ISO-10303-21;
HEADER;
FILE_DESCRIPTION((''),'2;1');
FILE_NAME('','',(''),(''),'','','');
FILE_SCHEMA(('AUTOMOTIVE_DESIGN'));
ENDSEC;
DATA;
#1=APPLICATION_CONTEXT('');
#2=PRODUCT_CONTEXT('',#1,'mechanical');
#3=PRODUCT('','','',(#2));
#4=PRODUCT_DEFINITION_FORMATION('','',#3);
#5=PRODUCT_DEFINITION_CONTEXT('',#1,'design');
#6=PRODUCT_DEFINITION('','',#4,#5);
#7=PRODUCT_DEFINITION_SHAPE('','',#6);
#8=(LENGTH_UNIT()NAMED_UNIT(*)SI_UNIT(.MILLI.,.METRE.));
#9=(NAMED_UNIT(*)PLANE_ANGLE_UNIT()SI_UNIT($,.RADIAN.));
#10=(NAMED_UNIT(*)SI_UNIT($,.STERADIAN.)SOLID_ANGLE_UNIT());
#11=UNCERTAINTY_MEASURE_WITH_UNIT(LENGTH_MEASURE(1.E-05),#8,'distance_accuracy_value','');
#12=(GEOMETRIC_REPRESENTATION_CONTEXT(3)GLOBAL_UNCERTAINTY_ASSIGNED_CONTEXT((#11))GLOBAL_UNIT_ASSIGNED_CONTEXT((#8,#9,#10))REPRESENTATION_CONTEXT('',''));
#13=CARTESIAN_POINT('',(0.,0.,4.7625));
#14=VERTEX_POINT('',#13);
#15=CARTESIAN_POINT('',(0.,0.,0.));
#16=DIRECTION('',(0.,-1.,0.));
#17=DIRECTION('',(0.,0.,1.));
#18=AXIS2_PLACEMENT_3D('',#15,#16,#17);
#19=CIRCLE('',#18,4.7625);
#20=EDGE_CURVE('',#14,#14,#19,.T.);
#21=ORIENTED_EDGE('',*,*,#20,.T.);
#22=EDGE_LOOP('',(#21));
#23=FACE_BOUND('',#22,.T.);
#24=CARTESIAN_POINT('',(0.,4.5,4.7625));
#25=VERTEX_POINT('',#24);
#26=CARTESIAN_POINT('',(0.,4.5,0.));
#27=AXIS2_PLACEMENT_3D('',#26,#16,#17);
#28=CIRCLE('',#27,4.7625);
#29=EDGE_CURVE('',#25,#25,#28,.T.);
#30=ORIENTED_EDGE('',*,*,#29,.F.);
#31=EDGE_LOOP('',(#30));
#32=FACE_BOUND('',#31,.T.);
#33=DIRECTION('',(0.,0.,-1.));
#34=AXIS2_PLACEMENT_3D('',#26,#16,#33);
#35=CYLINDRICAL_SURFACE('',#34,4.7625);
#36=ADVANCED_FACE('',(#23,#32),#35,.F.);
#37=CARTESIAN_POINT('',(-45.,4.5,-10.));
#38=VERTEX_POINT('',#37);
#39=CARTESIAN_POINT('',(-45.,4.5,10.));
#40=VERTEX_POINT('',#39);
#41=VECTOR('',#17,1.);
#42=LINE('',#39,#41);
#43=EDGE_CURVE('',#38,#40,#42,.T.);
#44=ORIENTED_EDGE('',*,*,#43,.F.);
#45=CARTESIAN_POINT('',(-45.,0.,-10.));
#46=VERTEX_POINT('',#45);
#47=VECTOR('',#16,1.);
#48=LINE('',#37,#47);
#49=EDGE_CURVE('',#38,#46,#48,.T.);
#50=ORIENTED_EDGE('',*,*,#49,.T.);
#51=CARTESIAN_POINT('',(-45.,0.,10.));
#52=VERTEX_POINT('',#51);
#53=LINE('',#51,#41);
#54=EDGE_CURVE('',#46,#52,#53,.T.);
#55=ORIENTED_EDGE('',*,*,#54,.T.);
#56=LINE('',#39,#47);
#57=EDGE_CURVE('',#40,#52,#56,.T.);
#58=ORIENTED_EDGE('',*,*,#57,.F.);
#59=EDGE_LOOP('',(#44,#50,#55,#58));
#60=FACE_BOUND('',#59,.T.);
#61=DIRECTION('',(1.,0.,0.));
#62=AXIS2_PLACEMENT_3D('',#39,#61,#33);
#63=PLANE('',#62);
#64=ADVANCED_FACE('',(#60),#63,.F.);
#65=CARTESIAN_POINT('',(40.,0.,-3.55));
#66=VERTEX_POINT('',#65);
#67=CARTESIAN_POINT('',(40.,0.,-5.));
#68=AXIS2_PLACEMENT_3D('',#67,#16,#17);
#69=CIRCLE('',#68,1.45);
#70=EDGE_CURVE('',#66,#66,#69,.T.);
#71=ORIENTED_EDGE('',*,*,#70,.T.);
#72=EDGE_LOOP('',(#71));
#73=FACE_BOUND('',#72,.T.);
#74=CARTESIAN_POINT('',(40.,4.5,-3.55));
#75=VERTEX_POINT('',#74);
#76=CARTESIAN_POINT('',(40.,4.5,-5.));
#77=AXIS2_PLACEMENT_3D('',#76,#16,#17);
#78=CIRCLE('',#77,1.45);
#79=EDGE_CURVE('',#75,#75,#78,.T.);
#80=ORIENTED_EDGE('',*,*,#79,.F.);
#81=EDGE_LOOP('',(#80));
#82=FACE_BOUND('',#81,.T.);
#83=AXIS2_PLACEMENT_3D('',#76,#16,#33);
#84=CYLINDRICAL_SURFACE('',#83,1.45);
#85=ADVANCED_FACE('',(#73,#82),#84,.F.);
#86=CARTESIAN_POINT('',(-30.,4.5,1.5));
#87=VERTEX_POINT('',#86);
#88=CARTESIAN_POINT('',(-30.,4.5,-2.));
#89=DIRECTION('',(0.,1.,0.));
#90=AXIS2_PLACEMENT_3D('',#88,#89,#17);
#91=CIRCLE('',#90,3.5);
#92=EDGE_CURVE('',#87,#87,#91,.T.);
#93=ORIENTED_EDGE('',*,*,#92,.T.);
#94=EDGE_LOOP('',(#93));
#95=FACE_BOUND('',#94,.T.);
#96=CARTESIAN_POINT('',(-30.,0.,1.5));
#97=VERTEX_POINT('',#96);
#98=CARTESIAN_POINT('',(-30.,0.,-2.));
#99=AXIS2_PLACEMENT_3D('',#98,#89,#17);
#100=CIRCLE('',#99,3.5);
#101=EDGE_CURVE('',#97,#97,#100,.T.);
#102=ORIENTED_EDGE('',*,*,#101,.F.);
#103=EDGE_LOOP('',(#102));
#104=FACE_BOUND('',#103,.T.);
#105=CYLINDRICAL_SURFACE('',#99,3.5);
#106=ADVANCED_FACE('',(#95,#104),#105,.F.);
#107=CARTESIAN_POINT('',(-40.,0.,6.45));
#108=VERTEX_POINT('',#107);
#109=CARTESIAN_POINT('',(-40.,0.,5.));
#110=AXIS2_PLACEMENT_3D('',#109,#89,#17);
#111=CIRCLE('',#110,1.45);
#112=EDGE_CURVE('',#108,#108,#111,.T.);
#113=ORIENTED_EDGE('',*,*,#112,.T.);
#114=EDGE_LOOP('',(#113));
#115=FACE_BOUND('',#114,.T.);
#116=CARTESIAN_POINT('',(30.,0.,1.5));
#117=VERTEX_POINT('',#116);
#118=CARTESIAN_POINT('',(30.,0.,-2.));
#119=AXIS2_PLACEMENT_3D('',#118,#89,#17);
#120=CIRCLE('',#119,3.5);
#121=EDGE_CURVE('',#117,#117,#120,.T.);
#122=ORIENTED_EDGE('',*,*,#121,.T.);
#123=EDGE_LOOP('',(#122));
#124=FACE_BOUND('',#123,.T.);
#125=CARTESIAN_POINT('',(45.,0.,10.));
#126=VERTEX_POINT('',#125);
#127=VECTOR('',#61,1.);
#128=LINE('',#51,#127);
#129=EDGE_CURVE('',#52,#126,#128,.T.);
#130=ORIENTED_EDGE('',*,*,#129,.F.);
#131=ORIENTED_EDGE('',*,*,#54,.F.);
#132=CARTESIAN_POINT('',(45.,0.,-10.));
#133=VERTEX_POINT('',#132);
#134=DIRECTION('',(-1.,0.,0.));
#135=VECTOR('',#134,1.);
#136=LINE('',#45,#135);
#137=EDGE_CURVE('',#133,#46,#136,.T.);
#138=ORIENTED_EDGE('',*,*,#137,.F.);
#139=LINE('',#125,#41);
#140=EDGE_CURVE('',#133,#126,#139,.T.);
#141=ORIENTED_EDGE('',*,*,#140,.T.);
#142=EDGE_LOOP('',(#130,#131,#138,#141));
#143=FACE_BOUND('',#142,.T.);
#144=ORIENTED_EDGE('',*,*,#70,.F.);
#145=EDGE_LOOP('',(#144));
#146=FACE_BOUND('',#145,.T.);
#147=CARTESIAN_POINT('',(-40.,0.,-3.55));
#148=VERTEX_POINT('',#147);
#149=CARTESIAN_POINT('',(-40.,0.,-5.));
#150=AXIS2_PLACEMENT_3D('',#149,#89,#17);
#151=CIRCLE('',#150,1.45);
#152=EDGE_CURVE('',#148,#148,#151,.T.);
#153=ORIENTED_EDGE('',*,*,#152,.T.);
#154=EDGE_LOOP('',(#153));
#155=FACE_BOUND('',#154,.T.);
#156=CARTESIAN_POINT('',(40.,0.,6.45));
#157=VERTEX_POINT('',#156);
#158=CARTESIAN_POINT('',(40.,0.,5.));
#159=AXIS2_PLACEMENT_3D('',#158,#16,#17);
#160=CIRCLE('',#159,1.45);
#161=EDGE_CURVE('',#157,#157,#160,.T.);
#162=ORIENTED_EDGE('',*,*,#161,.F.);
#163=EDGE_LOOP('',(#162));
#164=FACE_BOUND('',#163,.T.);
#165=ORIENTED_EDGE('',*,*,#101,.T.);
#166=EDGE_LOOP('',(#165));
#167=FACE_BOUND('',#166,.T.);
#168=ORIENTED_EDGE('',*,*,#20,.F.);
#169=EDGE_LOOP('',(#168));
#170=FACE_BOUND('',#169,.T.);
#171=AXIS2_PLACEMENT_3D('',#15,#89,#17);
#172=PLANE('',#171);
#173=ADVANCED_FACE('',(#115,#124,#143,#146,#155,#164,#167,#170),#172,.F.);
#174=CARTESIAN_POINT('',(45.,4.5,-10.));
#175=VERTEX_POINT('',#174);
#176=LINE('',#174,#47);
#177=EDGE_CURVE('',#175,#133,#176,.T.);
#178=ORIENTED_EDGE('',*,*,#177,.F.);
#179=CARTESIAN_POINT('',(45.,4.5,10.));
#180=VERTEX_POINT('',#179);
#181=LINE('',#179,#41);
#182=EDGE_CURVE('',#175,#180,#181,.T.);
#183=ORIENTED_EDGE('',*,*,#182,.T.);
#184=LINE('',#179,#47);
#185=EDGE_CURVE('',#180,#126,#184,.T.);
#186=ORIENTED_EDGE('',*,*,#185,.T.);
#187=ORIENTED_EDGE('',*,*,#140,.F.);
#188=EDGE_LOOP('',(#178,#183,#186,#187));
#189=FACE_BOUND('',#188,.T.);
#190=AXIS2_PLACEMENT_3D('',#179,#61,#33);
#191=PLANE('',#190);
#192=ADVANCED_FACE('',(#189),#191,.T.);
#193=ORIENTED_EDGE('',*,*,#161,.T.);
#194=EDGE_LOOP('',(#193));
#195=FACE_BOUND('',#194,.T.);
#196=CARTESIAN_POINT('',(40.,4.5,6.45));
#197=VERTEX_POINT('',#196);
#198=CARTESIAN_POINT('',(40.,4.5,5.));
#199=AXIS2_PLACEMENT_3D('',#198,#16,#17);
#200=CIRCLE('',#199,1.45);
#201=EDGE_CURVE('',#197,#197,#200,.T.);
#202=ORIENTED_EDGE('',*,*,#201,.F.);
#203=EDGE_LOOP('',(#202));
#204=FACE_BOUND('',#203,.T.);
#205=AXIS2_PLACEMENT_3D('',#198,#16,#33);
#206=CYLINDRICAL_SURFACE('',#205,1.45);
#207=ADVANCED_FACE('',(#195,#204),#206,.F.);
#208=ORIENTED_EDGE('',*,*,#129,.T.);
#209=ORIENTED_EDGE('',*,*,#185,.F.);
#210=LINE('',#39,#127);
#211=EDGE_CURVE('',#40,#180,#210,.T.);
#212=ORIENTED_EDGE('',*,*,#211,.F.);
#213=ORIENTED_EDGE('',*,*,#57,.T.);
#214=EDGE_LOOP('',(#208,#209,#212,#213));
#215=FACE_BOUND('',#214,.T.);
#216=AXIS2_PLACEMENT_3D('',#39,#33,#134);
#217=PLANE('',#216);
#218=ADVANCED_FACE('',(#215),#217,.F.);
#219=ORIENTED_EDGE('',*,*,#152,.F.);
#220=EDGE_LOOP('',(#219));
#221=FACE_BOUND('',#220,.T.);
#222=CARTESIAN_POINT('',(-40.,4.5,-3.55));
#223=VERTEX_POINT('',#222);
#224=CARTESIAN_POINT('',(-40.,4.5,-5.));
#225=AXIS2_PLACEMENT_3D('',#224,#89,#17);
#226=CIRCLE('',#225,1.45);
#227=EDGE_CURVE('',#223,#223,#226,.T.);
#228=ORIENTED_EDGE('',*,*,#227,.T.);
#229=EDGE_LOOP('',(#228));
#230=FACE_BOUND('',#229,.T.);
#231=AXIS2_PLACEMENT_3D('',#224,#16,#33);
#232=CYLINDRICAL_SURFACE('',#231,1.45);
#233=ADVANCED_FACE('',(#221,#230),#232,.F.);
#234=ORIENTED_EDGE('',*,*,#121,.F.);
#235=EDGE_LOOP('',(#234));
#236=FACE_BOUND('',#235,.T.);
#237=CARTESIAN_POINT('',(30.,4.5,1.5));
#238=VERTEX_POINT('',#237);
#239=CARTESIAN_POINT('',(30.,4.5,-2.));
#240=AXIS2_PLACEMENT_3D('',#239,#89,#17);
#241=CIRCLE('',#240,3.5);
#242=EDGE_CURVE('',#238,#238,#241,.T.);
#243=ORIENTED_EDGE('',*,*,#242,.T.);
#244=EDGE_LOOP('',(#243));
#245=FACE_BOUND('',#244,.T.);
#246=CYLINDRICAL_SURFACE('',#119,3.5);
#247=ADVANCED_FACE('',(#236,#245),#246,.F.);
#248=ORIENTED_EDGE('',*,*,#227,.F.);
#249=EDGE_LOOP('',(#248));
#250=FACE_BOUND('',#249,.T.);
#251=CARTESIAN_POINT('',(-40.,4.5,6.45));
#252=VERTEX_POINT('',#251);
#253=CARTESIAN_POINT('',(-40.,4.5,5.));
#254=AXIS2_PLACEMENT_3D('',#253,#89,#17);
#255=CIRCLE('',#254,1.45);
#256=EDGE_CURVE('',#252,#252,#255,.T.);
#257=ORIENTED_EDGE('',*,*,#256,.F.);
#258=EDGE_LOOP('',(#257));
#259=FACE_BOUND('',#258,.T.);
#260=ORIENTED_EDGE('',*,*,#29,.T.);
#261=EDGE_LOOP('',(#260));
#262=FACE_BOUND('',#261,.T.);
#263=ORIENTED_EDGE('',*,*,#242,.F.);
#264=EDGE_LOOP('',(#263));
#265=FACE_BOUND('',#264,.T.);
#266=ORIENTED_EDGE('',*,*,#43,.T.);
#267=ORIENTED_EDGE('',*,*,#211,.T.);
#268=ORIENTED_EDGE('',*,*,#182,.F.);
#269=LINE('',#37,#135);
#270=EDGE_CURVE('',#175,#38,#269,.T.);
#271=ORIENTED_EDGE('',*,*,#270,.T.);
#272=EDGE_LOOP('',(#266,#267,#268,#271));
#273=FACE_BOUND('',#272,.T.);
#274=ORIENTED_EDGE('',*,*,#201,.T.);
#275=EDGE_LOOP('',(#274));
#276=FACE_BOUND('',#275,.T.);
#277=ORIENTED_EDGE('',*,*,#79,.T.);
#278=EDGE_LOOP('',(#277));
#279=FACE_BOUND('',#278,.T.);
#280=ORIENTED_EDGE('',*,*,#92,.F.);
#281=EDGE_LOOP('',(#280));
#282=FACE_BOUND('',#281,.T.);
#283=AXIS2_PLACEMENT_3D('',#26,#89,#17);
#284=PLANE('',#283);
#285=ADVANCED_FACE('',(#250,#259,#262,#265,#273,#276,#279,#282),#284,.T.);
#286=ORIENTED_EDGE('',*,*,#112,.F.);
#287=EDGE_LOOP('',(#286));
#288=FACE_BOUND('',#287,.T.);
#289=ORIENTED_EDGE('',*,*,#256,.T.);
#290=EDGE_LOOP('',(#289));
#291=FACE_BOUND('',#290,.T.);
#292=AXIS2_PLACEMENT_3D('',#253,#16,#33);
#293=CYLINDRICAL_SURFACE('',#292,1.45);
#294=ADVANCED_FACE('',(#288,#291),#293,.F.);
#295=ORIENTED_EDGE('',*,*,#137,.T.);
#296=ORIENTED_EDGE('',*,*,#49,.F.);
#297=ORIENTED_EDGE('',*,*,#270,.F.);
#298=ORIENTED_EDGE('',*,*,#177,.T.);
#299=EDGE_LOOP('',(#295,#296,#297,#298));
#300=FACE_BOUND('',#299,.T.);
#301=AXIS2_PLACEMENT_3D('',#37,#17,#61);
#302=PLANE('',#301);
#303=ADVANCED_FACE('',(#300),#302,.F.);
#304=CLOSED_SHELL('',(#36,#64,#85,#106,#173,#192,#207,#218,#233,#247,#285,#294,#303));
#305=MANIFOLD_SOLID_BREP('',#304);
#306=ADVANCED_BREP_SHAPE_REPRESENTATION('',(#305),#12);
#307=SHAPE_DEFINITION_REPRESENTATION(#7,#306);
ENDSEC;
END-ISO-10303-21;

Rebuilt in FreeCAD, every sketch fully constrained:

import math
import FreeCAD as App
import Part
import Sketcher
Q = App.Units.Quantity

doc = App.newDocument("Part")
params = doc.addObject("Spreadsheet::Sheet", "Params")
for row, (alias, value) in enumerate([
    ("sketch1_diameter", "2.9 mm"),
    ("sketch1_width", "45 mm"),
    ("sketch1_height", "20 mm"),
    ("pad1_length", "4.5 mm"),
    ("sketch2_diameter", "7 mm"),
], start=1):
    params.set(f"A{row}", alias)
    params.set(f"B{row}", "=" + value)
    params.setAlias(f"B{row}", alias)

body = doc.addObject("PartDesign::Body", "Body")

sketch1 = body.newObject("Sketcher::SketchObject", "Sketch")
sketch1.AttachmentSupport = (doc.getObject("XZ_Plane"), [""])
sketch1.MapMode = "FlatFace"
sketch1.addGeometry(Part.LineSegment(App.Vector(0, -4.8, 0), App.Vector(0, -10, 0)), False)
sketch1.addGeometry(Part.LineSegment(App.Vector(0, -10, 0), App.Vector(-45, -10, 0)), False)
sketch1.addGeometry(Part.LineSegment(App.Vector(-45, -10, 0), App.Vector(-45, 10, 0)), False)
sketch1.addGeometry(Part.LineSegment(App.Vector(-45, 10, 0), App.Vector(0, 10, 0)), False)
sketch1.addGeometry(Part.LineSegment(App.Vector(0, 10, 0), App.Vector(0, 4.8, 0)), False)
sketch1.addGeometry(Part.ArcOfCircle(Part.Circle(App.Vector(0, 0, 0), App.Vector(0, 0, 1), 4.8), math.radians(90), math.radians(270)), False)
sketch1.addGeometry(Part.Circle(App.Vector(-40, 5, 0), App.Vector(0, 0, 1), 1.4), False)
sketch1.addGeometry(Part.Circle(App.Vector(-40, -5, 0), App.Vector(0, 0, 1), 1.4), False)
sketch1.addConstraint(Sketcher.Constraint("Coincident", 0, 2, 1, 1))
sketch1.addConstraint(Sketcher.Constraint("Coincident", 1, 2, 2, 1))
sketch1.addConstraint(Sketcher.Constraint("Coincident", 2, 2, 3, 1))
sketch1.addConstraint(Sketcher.Constraint("Coincident", 3, 2, 4, 1))
sketch1.addConstraint(Sketcher.Constraint("Coincident", 4, 2, 5, 1))
sketch1.addConstraint(Sketcher.Constraint("Coincident", 5, 2, 0, 1))
sketch1.addConstraint(Sketcher.Constraint("Vertical", 0))
sketch1.addConstraint(Sketcher.Constraint("Horizontal", 1))
sketch1.addConstraint(Sketcher.Constraint("Vertical", 2))
sketch1.addConstraint(Sketcher.Constraint("Horizontal", 3))
sketch1.addConstraint(Sketcher.Constraint("Vertical", 4))
sketch1.addConstraint(Sketcher.Constraint("Coincident", 5, 3, -1, 1))
sketch1.addConstraint(Sketcher.Constraint("Equal", 6, 7))
sketch1.addConstraint(Sketcher.Constraint("Symmetric", 0, 2, 3, 2, -1, 1))
sketch1.addConstraint(Sketcher.Constraint("Symmetric", 6, 3, 7, 3, -1))
sketch1.addConstraint(Sketcher.Constraint("PointOnObject", 0, 2, -2))
sketch1.addConstraint(Sketcher.Constraint("Diameter", 6, Q("2.9 mm")))
sketch1.addConstraint(Sketcher.Constraint("DistanceX", 1, 2, 1, 1, Q("45 mm")))
sketch1.addConstraint(Sketcher.Constraint("DistanceY", 2, 1, 2, 2, Q("20 mm")))
sketch1.addConstraint(Sketcher.Constraint("DistanceX", 6, 3, -1, 1, Q("40 mm")))
sketch1.addConstraint(Sketcher.Constraint("DistanceY", -1, 1, 6, 3, Q("5 mm")))
sketch1.addConstraint(Sketcher.Constraint("Radius", 5, Q("4.7625 mm")))
sketch1.setExpression("Constraints[16]", "Params.sketch1_diameter")
sketch1.setExpression("Constraints[17]", "Params.sketch1_width")
sketch1.setExpression("Constraints[18]", "Params.sketch1_height")
pad1 = body.newObject("PartDesign::Pad", "Pad")
pad1.Profile = sketch1
pad1.setExpression("Length", "Params.pad1_length")
pad1.Reversed = True
doc.recompute()

mirrored = body.newObject("PartDesign::Mirrored", "Mirrored")
mirrored.Originals = [pad1]
mirrored.MirrorPlane = (doc.getObject("YZ_Plane"), [""])
body.Tip = mirrored

sketch2 = body.newObject("Sketcher::SketchObject", "Sketch001")
sketch2.AttachmentSupport = (doc.getObject("XZ_Plane"), [""])
sketch2.MapMode = "FlatFace"
sketch2.AttachmentOffset = App.Placement(App.Vector(0, 0, -4.5), App.Rotation())
sketch2.addGeometry(Part.Circle(App.Vector(-30, -2, 0), App.Vector(0, 0, 1), 3.5), False)
sketch2.addGeometry(Part.Circle(App.Vector(30, -2, 0), App.Vector(0, 0, 1), 3.5), False)
sketch2.addConstraint(Sketcher.Constraint("Equal", 0, 1))
sketch2.addConstraint(Sketcher.Constraint("Symmetric", 0, 3, 1, 3, -2))
sketch2.addConstraint(Sketcher.Constraint("Diameter", 0, Q("7 mm")))
sketch2.addConstraint(Sketcher.Constraint("DistanceX", 0, 3, -1, 1, Q("30 mm")))
sketch2.addConstraint(Sketcher.Constraint("DistanceY", 0, 3, -1, 1, Q("2 mm")))
sketch2.setExpression("Constraints[2]", "Params.sketch2_diameter")
pocket1 = body.newObject("PartDesign::Pocket", "Pocket")
pocket1.Profile = sketch2
pocket1.Type = "ThroughAll"
pocket1.Reversed = True

doc.recompute()
